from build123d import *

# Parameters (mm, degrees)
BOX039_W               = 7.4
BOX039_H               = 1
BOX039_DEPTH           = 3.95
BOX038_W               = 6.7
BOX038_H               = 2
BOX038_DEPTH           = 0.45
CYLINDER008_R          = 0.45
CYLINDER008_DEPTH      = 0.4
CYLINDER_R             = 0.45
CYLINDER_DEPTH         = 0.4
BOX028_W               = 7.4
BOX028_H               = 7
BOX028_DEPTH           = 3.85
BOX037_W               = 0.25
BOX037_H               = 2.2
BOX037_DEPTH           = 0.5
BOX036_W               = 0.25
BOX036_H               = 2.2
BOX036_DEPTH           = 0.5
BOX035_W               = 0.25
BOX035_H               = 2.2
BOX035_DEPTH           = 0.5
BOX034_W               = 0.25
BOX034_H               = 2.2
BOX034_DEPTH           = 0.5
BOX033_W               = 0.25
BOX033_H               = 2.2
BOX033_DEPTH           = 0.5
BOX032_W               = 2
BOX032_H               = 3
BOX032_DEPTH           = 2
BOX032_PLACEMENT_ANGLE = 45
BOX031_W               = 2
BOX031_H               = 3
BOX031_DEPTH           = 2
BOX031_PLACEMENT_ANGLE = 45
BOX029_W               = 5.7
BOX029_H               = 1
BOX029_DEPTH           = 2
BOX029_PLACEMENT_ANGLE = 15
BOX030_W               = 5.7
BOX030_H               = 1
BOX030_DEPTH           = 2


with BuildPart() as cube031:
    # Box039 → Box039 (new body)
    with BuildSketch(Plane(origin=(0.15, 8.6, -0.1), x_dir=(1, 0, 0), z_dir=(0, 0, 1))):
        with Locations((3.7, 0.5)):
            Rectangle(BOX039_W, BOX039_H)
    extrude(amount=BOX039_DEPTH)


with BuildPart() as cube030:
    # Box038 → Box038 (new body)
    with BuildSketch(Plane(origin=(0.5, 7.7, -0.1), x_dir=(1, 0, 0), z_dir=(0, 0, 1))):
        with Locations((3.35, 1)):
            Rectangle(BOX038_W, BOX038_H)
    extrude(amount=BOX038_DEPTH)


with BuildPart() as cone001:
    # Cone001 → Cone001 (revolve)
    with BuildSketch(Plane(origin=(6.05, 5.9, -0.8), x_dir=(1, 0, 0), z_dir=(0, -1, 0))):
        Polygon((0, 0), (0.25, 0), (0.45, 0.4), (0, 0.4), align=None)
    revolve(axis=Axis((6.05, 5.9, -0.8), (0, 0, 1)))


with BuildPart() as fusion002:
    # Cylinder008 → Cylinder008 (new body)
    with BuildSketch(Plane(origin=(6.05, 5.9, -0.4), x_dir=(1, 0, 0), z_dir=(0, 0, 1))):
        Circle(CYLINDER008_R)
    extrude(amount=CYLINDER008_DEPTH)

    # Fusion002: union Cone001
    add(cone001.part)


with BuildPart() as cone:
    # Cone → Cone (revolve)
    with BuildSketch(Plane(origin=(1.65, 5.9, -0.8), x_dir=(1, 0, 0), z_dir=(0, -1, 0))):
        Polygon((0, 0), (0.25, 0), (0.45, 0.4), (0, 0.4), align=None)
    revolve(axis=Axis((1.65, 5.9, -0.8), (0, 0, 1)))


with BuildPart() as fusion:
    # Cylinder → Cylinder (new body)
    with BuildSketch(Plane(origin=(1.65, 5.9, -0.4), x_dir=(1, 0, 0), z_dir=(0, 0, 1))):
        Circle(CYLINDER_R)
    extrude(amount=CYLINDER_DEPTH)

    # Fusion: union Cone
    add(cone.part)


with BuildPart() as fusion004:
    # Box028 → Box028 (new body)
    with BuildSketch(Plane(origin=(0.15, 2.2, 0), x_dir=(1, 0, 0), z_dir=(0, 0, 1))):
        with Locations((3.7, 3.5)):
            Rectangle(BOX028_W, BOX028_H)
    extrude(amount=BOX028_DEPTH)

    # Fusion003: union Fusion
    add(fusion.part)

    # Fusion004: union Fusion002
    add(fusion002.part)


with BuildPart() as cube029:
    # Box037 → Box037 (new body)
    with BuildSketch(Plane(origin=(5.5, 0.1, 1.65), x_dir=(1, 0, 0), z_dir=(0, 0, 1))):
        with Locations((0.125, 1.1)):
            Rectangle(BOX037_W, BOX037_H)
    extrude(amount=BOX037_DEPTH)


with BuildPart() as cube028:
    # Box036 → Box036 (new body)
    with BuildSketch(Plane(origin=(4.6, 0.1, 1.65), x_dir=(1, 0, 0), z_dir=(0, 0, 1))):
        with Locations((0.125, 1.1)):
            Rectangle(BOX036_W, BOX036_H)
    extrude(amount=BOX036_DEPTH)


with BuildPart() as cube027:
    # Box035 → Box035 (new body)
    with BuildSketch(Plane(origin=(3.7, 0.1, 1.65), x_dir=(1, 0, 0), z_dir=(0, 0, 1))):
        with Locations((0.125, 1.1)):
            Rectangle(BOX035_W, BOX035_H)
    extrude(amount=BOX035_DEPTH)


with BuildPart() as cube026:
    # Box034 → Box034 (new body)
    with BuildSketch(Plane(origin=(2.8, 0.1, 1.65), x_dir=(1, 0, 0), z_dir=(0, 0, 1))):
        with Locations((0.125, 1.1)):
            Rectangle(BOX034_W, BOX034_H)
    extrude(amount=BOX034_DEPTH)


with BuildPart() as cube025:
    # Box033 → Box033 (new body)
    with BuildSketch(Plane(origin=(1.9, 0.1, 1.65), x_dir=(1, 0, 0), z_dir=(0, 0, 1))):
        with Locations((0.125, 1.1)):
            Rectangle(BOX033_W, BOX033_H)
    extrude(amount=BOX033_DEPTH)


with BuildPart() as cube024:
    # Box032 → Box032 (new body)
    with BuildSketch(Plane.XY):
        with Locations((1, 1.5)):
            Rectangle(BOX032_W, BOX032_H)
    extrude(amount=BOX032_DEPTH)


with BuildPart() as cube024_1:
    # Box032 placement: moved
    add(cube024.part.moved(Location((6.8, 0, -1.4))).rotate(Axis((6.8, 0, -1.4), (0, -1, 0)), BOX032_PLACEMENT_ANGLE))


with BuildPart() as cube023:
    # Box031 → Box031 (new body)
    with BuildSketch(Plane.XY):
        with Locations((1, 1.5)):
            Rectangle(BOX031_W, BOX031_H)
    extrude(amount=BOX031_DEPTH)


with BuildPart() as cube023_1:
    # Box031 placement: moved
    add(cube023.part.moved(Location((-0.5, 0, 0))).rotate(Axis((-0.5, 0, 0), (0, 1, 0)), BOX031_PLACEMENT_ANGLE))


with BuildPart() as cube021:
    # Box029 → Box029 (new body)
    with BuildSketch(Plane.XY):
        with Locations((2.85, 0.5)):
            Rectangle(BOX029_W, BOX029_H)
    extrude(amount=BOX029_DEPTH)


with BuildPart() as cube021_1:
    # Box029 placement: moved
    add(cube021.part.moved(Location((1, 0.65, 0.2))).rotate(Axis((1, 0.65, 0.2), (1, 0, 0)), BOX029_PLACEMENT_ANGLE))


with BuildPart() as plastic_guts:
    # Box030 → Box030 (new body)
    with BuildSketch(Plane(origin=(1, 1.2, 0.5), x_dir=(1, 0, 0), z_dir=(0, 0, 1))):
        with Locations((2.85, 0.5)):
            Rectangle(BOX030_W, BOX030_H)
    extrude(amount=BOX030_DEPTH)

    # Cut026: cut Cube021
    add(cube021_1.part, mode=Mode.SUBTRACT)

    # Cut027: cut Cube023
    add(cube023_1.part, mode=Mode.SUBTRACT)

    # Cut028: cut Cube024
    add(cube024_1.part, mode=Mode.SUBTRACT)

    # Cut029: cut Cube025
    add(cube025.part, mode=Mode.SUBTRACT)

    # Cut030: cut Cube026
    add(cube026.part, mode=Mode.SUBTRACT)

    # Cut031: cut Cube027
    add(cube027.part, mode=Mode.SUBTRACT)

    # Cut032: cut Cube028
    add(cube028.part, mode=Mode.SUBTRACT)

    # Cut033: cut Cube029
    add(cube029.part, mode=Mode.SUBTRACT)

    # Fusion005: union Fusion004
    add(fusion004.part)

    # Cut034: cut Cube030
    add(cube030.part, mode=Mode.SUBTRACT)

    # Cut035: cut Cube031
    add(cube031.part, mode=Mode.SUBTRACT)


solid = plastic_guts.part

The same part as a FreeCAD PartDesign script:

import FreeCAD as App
import Part
import Sketcher


def add_polygon(sketch, points):
    """Adds a closed chain of lines whose ends are joined by coincident constraints."""
    first, n = sketch.GeometryCount, len(points)
    for a, b in zip(points, points[1:] + points[:1]):
        sketch.addGeometry(Part.LineSegment(App.Vector(*a, 0), App.Vector(*b, 0)), False)
    for i in range(n):
        sketch.addConstraint(Sketcher.Constraint("Coincident", first + i, 2, first + (i + 1) % n, 1))

doc = App.newDocument("Part")
body = doc.addObject("PartDesign::Body", "Body")

sketch1 = body.newObject("Sketcher::SketchObject", "Sketch")
sketch1.AttachmentSupport = (doc.getObject("XY_Plane"), [""])
sketch1.MapMode = "FlatFace"
sketch1.AttachmentOffset = App.Placement(App.Vector(0, 0, -0.1), App.Rotation())
add_polygon(sketch1, [(0.1, 9.6), (0.1, 8.6), (7.5, 8.6), (7.5, 9.6)])
sketch1.addConstraint(Sketcher.Constraint("Vertical", 0))
sketch1.addConstraint(Sketcher.Constraint("Horizontal", 1))
sketch1.addConstraint(Sketcher.Constraint("Vertical", 2))
sketch1.addConstraint(Sketcher.Constraint("Horizontal", 3))
sketch1.addConstraint(Sketcher.Constraint("DistanceY", 0, 2, 0, 1, 1.0))
sketch1.addConstraint(Sketcher.Constraint("DistanceX", 1, 1, 1, 2, 7.4))
sketch1.addConstraint(Sketcher.Constraint("DistanceY", -1, 1, 0, 2, 8.6))
sketch1.addConstraint(Sketcher.Constraint("DistanceX", -1, 1, 0, 2, 0.15))
pad1 = body.newObject("PartDesign::Pad", "Pad")
pad1.Profile = sketch1
pad1.Length = 3.95
body2 = doc.addObject("PartDesign::Body", "Body001")

sketch2 = body2.newObject("Sketcher::SketchObject", "Sketch001")
sketch2.AttachmentSupport = (doc.getObject("XY_Plane001"), [""])
sketch2.MapMode = "FlatFace"
sketch2.AttachmentOffset = App.Placement(App.Vector(0, 0, -0.1), App.Rotation())
add_polygon(sketch2, [(0.5, 9.7), (0.5, 7.7), (7.2, 7.7), (7.2, 9.7)])
sketch2.addConstraint(Sketcher.Constraint("Vertical", 0))
sketch2.addConstraint(Sketcher.Constraint("Horizontal", 1))
sketch2.addConstraint(Sketcher.Constraint("Vertical", 2))
sketch2.addConstraint(Sketcher.Constraint("Horizontal", 3))
sketch2.addConstraint(Sketcher.Constraint("DistanceY", 0, 2, 0, 1, 2.0))
sketch2.addConstraint(Sketcher.Constraint("DistanceX", 1, 1, 1, 2, 6.7))
sketch2.addConstraint(Sketcher.Constraint("DistanceX", -1, 1, 0, 2, 0.5))
sketch2.addConstraint(Sketcher.Constraint("DistanceY", -1, 1, 0, 2, 7.7))
pad2 = body2.newObject("PartDesign::Pad", "Pad001")
pad2.Profile = sketch2
pad2.Length = 0.45
body3 = doc.addObject("PartDesign::Body", "Body002")

sketch3 = body3.newObject("Sketcher::SketchObject", "Sketch002")
sketch3.AttachmentSupport = (doc.getObject("XZ_Plane002"), [""])
sketch3.MapMode = "FlatFace"
sketch3.AttachmentOffset = App.Placement(App.Vector(0, 0, -5.9), App.Rotation())
add_polygon(sketch3, [(6.05, -0.8), (6.3, -0.8), (6.5, -0.4), (6.05, -0.4)])
sketch3.addGeometry(Part.LineSegment(App.Vector(6.05, -0.8, 0), App.Vector(6.05, -0.4, 0)), True)
sketch3.addConstraint(Sketcher.Constraint("Horizontal", 0))
sketch3.addConstraint(Sketcher.Constraint("Horizontal", 2))
sketch3.addConstraint(Sketcher.Constraint("Vertical", 3))
sketch3.addConstraint(Sketcher.Constraint("Vertical", 4))
sketch3.addConstraint(Sketcher.Constraint("Coincident", 4, 1, 3, 2))
sketch3.addConstraint(Sketcher.Constraint("Horizontal", 1, 2, 4, 2))
sketch3.addConstraint(Sketcher.Constraint("DistanceY", 3, 2, 3, 1, 0.4))
sketch3.addConstraint(Sketcher.Constraint("DistanceX", 0, 1, 0, 2, 0.25))
sketch3.addConstraint(Sketcher.Constraint("DistanceX", 2, 2, 2, 1, 0.45))
sketch3.addConstraint(Sketcher.Constraint("DistanceX", -1, 1, 0, 2, 6.3))
sketch3.addConstraint(Sketcher.Constraint("DistanceY", 0, 2, -1, 1, 0.8))
revolution = body3.newObject("PartDesign::Revolution", "Revolution")
revolution.Profile = sketch3
revolution.ReferenceAxis = (sketch3, ["Axis0"])
revolution.Angle = 360
body4 = doc.addObject("PartDesign::Body", "Body003")

sketch4 = body4.newObject("Sketcher::SketchObject", "Sketch003")
sketch4.AttachmentSupport = (doc.getObject("XY_Plane003"), [""])
sketch4.MapMode = "FlatFace"
sketch4.AttachmentOffset = App.Placement(App.Vector(0, 0, -0.4), App.Rotation())
sketch4.addGeometry(Part.Circle(App.Vector(6.05, 5.9, 0), App.Vector(0, 0, 1), 0.45), False)
sketch4.addConstraint(Sketcher.Constraint("Diameter", 0, 0.9))
sketch4.addConstraint(Sketcher.Constraint("DistanceY", -1, 1, 0, 3, 5.9))
sketch4.addConstraint(Sketcher.Constraint("DistanceX", -1, 1, 0, 3, 6.05))
pad3 = body4.newObject("PartDesign::Pad", "Pad002")
pad3.Profile = sketch4
pad3.Length = 0.4
doc.recompute()

boolean = body4.newObject("PartDesign::Boolean", "Boolean")
boolean.Type = "Fuse"
boolean.addObjects([body3])
body5 = doc.addObject("PartDesign::Body", "Body004")

sketch5 = body5.newObject("Sketcher::SketchObject", "Sketch004")
sketch5.AttachmentSupport = (doc.getObject("XZ_Plane004"), [""])
sketch5.MapMode = "FlatFace"
sketch5.AttachmentOffset = App.Placement(App.Vector(0, 0, -5.9), App.Rotation())
add_polygon(sketch5, [(1.65, -0.8), (1.9, -0.8), (2.1, -0.4), (1.65, -0.4)])
sketch5.addGeometry(Part.LineSegment(App.Vector(1.65, -0.8, 0), App.Vector(1.65, -0.4, 0)), True)
sketch5.addConstraint(Sketcher.Constraint("Horizontal", 0))
sketch5.addConstraint(Sketcher.Constraint("Horizontal", 2))
sketch5.addConstraint(Sketcher.Constraint("Vertical", 3))
sketch5.addConstraint(Sketcher.Constraint("Vertical", 4))
sketch5.addConstraint(Sketcher.Constraint("Coincident", 4, 1, 3, 2))
sketch5.addConstraint(Sketcher.Constraint("Horizontal", 1, 2, 4, 2))
sketch5.addConstraint(Sketcher.Constraint("DistanceY", 3, 2, 3, 1, 0.4))
sketch5.addConstraint(Sketcher.Constraint("DistanceX", 0, 1, 0, 2, 0.25))
sketch5.addConstraint(Sketcher.Constraint("DistanceX", 2, 2, 2, 1, 0.45))
sketch5.addConstraint(Sketcher.Constraint("DistanceX", -1, 1, 0, 2, 1.9))
sketch5.addConstraint(Sketcher.Constraint("DistanceY", 0, 2, -1, 1, 0.8))
revolution2 = body5.newObject("PartDesign::Revolution", "Revolution001")
revolution2.Profile = sketch5
revolution2.ReferenceAxis = (sketch5, ["Axis0"])
revolution2.Angle = 360
body6 = doc.addObject("PartDesign::Body", "Body005")

sketch6 = body6.newObject("Sketcher::SketchObject", "Sketch005")
sketch6.AttachmentSupport = (doc.getObject("XY_Plane005"), [""])
sketch6.MapMode = "FlatFace"
sketch6.AttachmentOffset = App.Placement(App.Vector(0, 0, -0.4), App.Rotation())
sketch6.addGeometry(Part.Circle(App.Vector(1.65, 5.9, 0), App.Vector(0, 0, 1), 0.45), False)
sketch6.addConstraint(Sketcher.Constraint("Diameter", 0, 0.9))
sketch6.addConstraint(Sketcher.Constraint("DistanceY", -1, 1, 0, 3, 5.9))
sketch6.addConstraint(Sketcher.Constraint("DistanceX", -1, 1, 0, 3, 1.65))
pad4 = body6.newObject("PartDesign::Pad", "Pad003")
pad4.Profile = sketch6
pad4.Length = 0.4
doc.recompute()

boolean2 = body6.newObject("PartDesign::Boolean", "Boolean001")
boolean2.Type = "Fuse"
boolean2.addObjects([body5])
body7 = doc.addObject("PartDesign::Body", "Body006")

sketch7 = body7.newObject("Sketcher::SketchObject", "Sketch006")
sketch7.AttachmentSupport = (doc.getObject("XY_Plane006"), [""])
sketch7.MapMode = "FlatFace"
add_polygon(sketch7, [(0, 9), (0, 2), (8, 2), (8, 9)])
sketch7.addConstraint(Sketcher.Constraint("Vertical", 0))
sketch7.addConstraint(Sketcher.Constraint("Horizontal", 1))
sketch7.addConstraint(Sketcher.Constraint("Vertical", 2))
sketch7.addConstraint(Sketcher.Constraint("Horizontal", 3))
sketch7.addConstraint(Sketcher.Constraint("DistanceY", 0, 2, 0, 1, 7.0))
sketch7.addConstraint(Sketcher.Constraint("DistanceX", 1, 1, 1, 2, 7.4))
sketch7.addConstraint(Sketcher.Constraint("DistanceY", -1, 1, 0, 2, 2.2))
sketch7.addConstraint(Sketcher.Constraint("DistanceX", -1, 1, 0, 2, 0.15))
pad5 = body7.newObject("PartDesign::Pad", "Pad004")
pad5.Profile = sketch7
pad5.Length = 3.85
doc.recompute()

boolean3 = body7.newObject("PartDesign::Boolean", "Boolean002")
boolean3.Type = "Fuse"
boolean3.addObjects([body6])
doc.recompute()

boolean4 = body7.newObject("PartDesign::Boolean", "Boolean003")
boolean4.Type = "Fuse"
boolean4.addObjects([body4])
body8 = doc.addObject("PartDesign::Body", "Body007")

sketch8 = body8.newObject("Sketcher::SketchObject", "Sketch007")
sketch8.AttachmentSupport = (doc.getObject("XY_Plane007"), [""])
sketch8.MapMode = "FlatFace"
sketch8.AttachmentOffset = App.Placement(App.Vector(0, 0, 1.65), App.Rotation())
add_polygon(sketch8, [(5.5, 2.3), (5.5, 0.1), (5.75, 0.1), (5.75, 2.3)])
sketch8.addConstraint(Sketcher.Constraint("Vertical", 0))
sketch8.addConstraint(Sketcher.Constraint("Horizontal", 1))
sketch8.addConstraint(Sketcher.Constraint("Vertical", 2))
sketch8.addConstraint(Sketcher.Constraint("Horizontal", 3))
sketch8.addConstraint(Sketcher.Constraint("DistanceY", 0, 2, 0, 1, 2.2))
sketch8.addConstraint(Sketcher.Constraint("DistanceX", 1, 1, 1, 2, 0.25))
sketch8.addConstraint(Sketcher.Constraint("DistanceX", -1, 1, 0, 2, 5.5))
sketch8.addConstraint(Sketcher.Constraint("DistanceY", -1, 1, 0, 2, 0.1))
pad6 = body8.newObject("PartDesign::Pad", "Pad005")
pad6.Profile = sketch8
pad6.Length = 0.5
body9 = doc.addObject("PartDesign::Body", "Body008")

sketch9 = body9.newObject("Sketcher::SketchObject", "Sketch008")
sketch9.AttachmentSupport = (doc.getObject("XY_Plane008"), [""])
sketch9.MapMode = "FlatFace"
sketch9.AttachmentOffset = App.Placement(App.Vector(0, 0, 1.65), App.Rotation())
add_polygon(sketch9, [(4.6, 2.3), (4.6, 0.1), (4.85, 0.1), (4.85, 2.3)])
sketch9.addConstraint(Sketcher.Constraint("Vertical", 0))
sketch9.addConstraint(Sketcher.Constraint("Horizontal", 1))
sketch9.addConstraint(Sketcher.Constraint("Vertical", 2))
sketch9.addConstraint(Sketcher.Constraint("Horizontal", 3))
sketch9.addConstraint(Sketcher.Constraint("DistanceY", 0, 2, 0, 1, 2.2))
sketch9.addConstraint(Sketcher.Constraint("DistanceX", 1, 1, 1, 2, 0.25))
sketch9.addConstraint(Sketcher.Constraint("DistanceX", -1, 1, 0, 2, 4.6))
sketch9.addConstraint(Sketcher.Constraint("DistanceY", -1, 1, 0, 2, 0.1))
pad7 = body9.newObject("PartDesign::Pad", "Pad006")
pad7.Profile = sketch9
pad7.Length = 0.5
body10 = doc.addObject("PartDesign::Body", "Body009")

sketch10 = body10.newObject("Sketcher::SketchObject", "Sketch009")
sketch10.AttachmentSupport = (doc.getObject("XY_Plane009"), [""])
sketch10.MapMode = "FlatFace"
sketch10.AttachmentOffset = App.Placement(App.Vector(0, 0, 1.65), App.Rotation())
add_polygon(sketch10, [(3.7, 2.3), (3.7, 0.1), (3.95, 0.1), (3.95, 2.3)])
sketch10.addConstraint(Sketcher.Constraint("Vertical", 0))
sketch10.addConstraint(Sketcher.Constraint("Horizontal", 1))
sketch10.addConstraint(Sketcher.Constraint("Vertical", 2))
sketch10.addConstraint(Sketcher.Constraint("Horizontal", 3))
sketch10.addConstraint(Sketcher.Constraint("DistanceY", 0, 2, 0, 1, 2.2))
sketch10.addConstraint(Sketcher.Constraint("DistanceX", 1, 1, 1, 2, 0.25))
sketch10.addConstraint(Sketcher.Constraint("DistanceX", -1, 1, 0, 2, 3.7))
sketch10.addConstraint(Sketcher.Constraint("DistanceY", -1, 1, 0, 2, 0.1))
pad8 = body10.newObject("PartDesign::Pad", "Pad007")
pad8.Profile = sketch10
pad8.Length = 0.5
body11 = doc.addObject("PartDesign::Body", "Body010")

sketch11 = body11.newObject("Sketcher::SketchObject", "Sketch010")
sketch11.AttachmentSupport = (doc.getObject("XY_Plane010"), [""])
sketch11.MapMode = "FlatFace"
sketch11.AttachmentOffset = App.Placement(App.Vector(0, 0, 1.65), App.Rotation())
add_polygon(sketch11, [(2.8, 2.3), (2.8, 0.1), (3.05, 0.1), (3.05, 2.3)])
sketch11.addConstraint(Sketcher.Constraint("Vertical", 0))
sketch11.addConstraint(Sketcher.Constraint("Horizontal", 1))
sketch11.addConstraint(Sketcher.Constraint("Vertical", 2))
sketch11.addConstraint(Sketcher.Constraint("Horizontal", 3))
sketch11.addConstraint(Sketcher.Constraint("DistanceY", 0, 2, 0, 1, 2.2))
sketch11.addConstraint(Sketcher.Constraint("DistanceX", 1, 1, 1, 2, 0.25))
sketch11.addConstraint(Sketcher.Constraint("DistanceX", -1, 1, 0, 2, 2.8))
sketch11.addConstraint(Sketcher.Constraint("DistanceY", -1, 1, 0, 2, 0.1))
pad9 = body11.newObject("PartDesign::Pad", "Pad008")
pad9.Profile = sketch11
pad9.Length = 0.5
body12 = doc.addObject("PartDesign::Body", "Body011")

sketch12 = body12.newObject("Sketcher::SketchObject", "Sketch011")
sketch12.AttachmentSupport = (doc.getObject("XY_Plane011"), [""])
sketch12.MapMode = "FlatFace"
sketch12.AttachmentOffset = App.Placement(App.Vector(0, 0, 1.65), App.Rotation())
add_polygon(sketch12, [(1.9, 2.3), (1.9, 0.1), (2.15, 0.1), (2.15, 2.3)])
sketch12.addConstraint(Sketcher.Constraint("Vertical", 0))
sketch12.addConstraint(Sketcher.Constraint("Horizontal", 1))
sketch12.addConstraint(Sketcher.Constraint("Vertical", 2))
sketch12.addConstraint(Sketcher.Constraint("Horizontal", 3))
sketch12.addConstraint(Sketcher.Constraint("DistanceY", 0, 2, 0, 1, 2.2))
sketch12.addConstraint(Sketcher.Constraint("DistanceX", 1, 1, 1, 2, 0.25))
sketch12.addConstraint(Sketcher.Constraint("DistanceX", -1, 1, 0, 2, 1.9))
sketch12.addConstraint(Sketcher.Constraint("DistanceY", -1, 1, 0, 2, 0.1))
pad10 = body12.newObject("PartDesign::Pad", "Pad009")
pad10.Profile = sketch12
pad10.Length = 0.5
body13 = doc.addObject("PartDesign::Body", "Body012")

sketch13 = body13.newObject("Sketcher::SketchObject", "Sketch012")
sketch13.AttachmentSupport = (doc.getObject("XY_Plane012"), [""])
sketch13.MapMode = "FlatFace"
add_polygon(sketch13, [(0, 3), (0, 0), (2, 0), (2, 3)])
sketch13.addConstraint(Sketcher.Constraint("Vertical", 0))
sketch13.addConstraint(Sketcher.Constraint("Horizontal", 1))
sketch13.addConstraint(Sketcher.Constraint("Vertical", 2))
sketch13.addConstraint(Sketcher.Constraint("Horizontal", 3))
sketch13.addConstraint(Sketcher.Constraint("Coincident", 0, 2, -1, 1))
sketch13.addConstraint(Sketcher.Constraint("DistanceX", 1, 1, 1, 2, 2.0))
sketch13.addConstraint(Sketcher.Constraint("DistanceY", 0, 2, 0, 1, 3.0))
pad11 = body13.newObject("PartDesign::Pad", "Pad010")
pad11.Profile = sketch13
pad11.Length = 2
body14 = doc.addObject("PartDesign::Body", "Body013")
doc.recompute()

body13.Placement = App.Placement(App.Vector(6.8, 0, -1.4), App.Rotation(App.Vector(0, -1, 0), 45))
boolean5 = body14.newObject("PartDesign::Boolean", "Boolean004")
boolean5.Type = "Fuse"
boolean5.addObjects([body13])
body15 = doc.addObject("PartDesign::Body", "Body014")

sketch14 = body15.newObject("Sketcher::SketchObject", "Sketch013")
sketch14.AttachmentSupport = (doc.getObject("XY_Plane014"), [""])
sketch14.MapMode = "FlatFace"
add_polygon(sketch14, [(0, 3), (0, 0), (2, 0), (2, 3)])
sketch14.addConstraint(Sketcher.Constraint("Vertical", 0))
sketch14.addConstraint(Sketcher.Constraint("Horizontal", 1))
sketch14.addConstraint(Sketcher.Constraint("Vertical", 2))
sketch14.addConstraint(Sketcher.Constraint("Horizontal", 3))
sketch14.addConstraint(Sketcher.Constraint("Coincident", 0, 2, -1, 1))
sketch14.addConstraint(Sketcher.Constraint("DistanceX", 1, 1, 1, 2, 2.0))
sketch14.addConstraint(Sketcher.Constraint("DistanceY", 0, 2, 0, 1, 3.0))
pad12 = body15.newObject("PartDesign::Pad", "Pad011")
pad12.Profile = sketch14
pad12.Length = 2
body16 = doc.addObject("PartDesign::Body", "Body015")
doc.recompute()

body15.Placement = App.Placement(App.Vector(-0.5, 0, 0), App.Rotation(App.Vector(0, 1, 0), 45))
boolean6 = body16.newObject("PartDesign::Boolean", "Boolean005")
boolean6.Type = "Fuse"
boolean6.addObjects([body15])
body17 = doc.addObject("PartDesign::Body", "Body016")

sketch15 = body17.newObject("Sketcher::SketchObject", "Sketch014")
sketch15.AttachmentSupport = (doc.getObject("XY_Plane016"), [""])
sketch15.MapMode = "FlatFace"
add_polygon(sketch15, [(0, 1), (0, 0), (5.7, 0), (5.7, 1)])
sketch15.addConstraint(Sketcher.Constraint("Vertical", 0))
sketch15.addConstraint(Sketcher.Constraint("Horizontal", 1))
sketch15.addConstraint(Sketcher.Constraint("Vertical", 2))
sketch15.addConstraint(Sketcher.Constraint("Horizontal", 3))
sketch15.addConstraint(Sketcher.Constraint("Coincident", 0, 2, -1, 1))
sketch15.addConstraint(Sketcher.Constraint("DistanceY", 0, 2, 0, 1, 1.0))
sketch15.addConstraint(Sketcher.Constraint("DistanceX", 1, 1, 1, 2, 5.7))
pad13 = body17.newObject("PartDesign::Pad", "Pad012")
pad13.Profile = sketch15
pad13.Length = 2
body18 = doc.addObject("PartDesign::Body", "Body017")
doc.recompute()

body17.Placement = App.Placement(App.Vector(1, 0.65, 0.2), App.Rotation(App.Vector(1, 0, 0), 15))
boolean7 = body18.newObject("PartDesign::Boolean", "Boolean006")
boolean7.Type = "Fuse"
boolean7.addObjects([body17])
body19 = doc.addObject("PartDesign::Body", "Body018")

sketch16 = body19.newObject("Sketcher::SketchObject", "Sketch015")
sketch16.AttachmentSupport = (doc.getObject("XY_Plane018"), [""])
sketch16.MapMode = "FlatFace"
sketch16.AttachmentOffset = App.Placement(App.Vector(0, 0, 0.5), App.Rotation())
add_polygon(sketch16, [(1, 2.2), (1, 1.2), (6.7, 1.2), (6.7, 2.2)])
sketch16.addConstraint(Sketcher.Constraint("Vertical", 0))
sketch16.addConstraint(Sketcher.Constraint("Horizontal", 1))
sketch16.addConstraint(Sketcher.Constraint("Vertical", 2))
sketch16.addConstraint(Sketcher.Constraint("Horizontal", 3))
sketch16.addConstraint(Sketcher.Constraint("DistanceY", 0, 2, 0, 1, 1.0))
sketch16.addConstraint(Sketcher.Constraint("DistanceX", 1, 1, 1, 2, 5.7))
sketch16.addConstraint(Sketcher.Constraint("DistanceX", -1, 1, 0, 2, 1.0))
sketch16.addConstraint(Sketcher.Constraint("DistanceY", -1, 1, 0, 2, 1.2))
pad14 = body19.newObject("PartDesign::Pad", "Pad013")
pad14.Profile = sketch16
pad14.Length = 2
doc.recompute()

boolean8 = body19.newObject("PartDesign::Boolean", "Boolean007")
boolean8.Type = "Cut"
boolean8.addObjects([body18])
doc.recompute()

boolean9 = body19.newObject("PartDesign::Boolean", "Boolean008")
boolean9.Type = "Cut"
boolean9.addObjects([body16])
doc.recompute()

boolean10 = body19.newObject("PartDesign::Boolean", "Boolean009")
boolean10.Type = "Cut"
boolean10.addObjects([body14])
doc.recompute()

boolean11 = body19.newObject("PartDesign::Boolean", "Boolean010")
boolean11.Type = "Cut"
boolean11.addObjects([body12])
doc.recompute()

boolean12 = body19.newObject("PartDesign::Boolean", "Boolean011")
boolean12.Type = "Cut"
boolean12.addObjects([body11])
doc.recompute()

boolean13 = body19.newObject("PartDesign::Boolean", "Boolean012")
boolean13.Type = "Cut"
boolean13.addObjects([body10])
doc.recompute()

boolean14 = body19.newObject("PartDesign::Boolean", "Boolean013")
boolean14.Type = "Cut"
boolean14.addObjects([body9])
doc.recompute()

boolean15 = body19.newObject("PartDesign::Boolean", "Boolean014")
boolean15.Type = "Cut"
boolean15.addObjects([body8])
doc.recompute()

boolean16 = body19.newObject("PartDesign::Boolean", "Boolean015")
boolean16.Type = "Fuse"
boolean16.addObjects([body7])
doc.recompute()

boolean17 = body19.newObject("PartDesign::Boolean", "Boolean016")
boolean17.Type = "Cut"
boolean17.addObjects([body2])
doc.recompute()

boolean18 = body19.newObject("PartDesign::Boolean", "Boolean017")
boolean18.Type = "Cut"
boolean18.addObjects([body])

doc.recompute()
